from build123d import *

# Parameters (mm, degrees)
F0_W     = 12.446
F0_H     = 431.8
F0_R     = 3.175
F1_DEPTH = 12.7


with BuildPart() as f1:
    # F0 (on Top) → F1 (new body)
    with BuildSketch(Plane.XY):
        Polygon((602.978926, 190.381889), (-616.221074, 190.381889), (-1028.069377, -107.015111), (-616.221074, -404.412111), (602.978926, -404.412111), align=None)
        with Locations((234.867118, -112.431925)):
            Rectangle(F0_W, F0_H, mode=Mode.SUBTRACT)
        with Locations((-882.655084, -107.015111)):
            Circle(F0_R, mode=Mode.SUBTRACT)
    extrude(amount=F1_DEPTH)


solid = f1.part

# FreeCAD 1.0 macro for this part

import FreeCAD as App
import Part
import Sketcher
from FreeCAD import Vector
Q = App.Units.Quantity


def add_polygon(sketch, points):
    """Adds a closed chain of lines whose ends are joined by coincident constraints."""
    first, n = sketch.GeometryCount, len(points)
    for a, b in zip(points, points[1:] + points[:1]):
        sketch.addGeometry(Part.LineSegment(App.Vector(*a, 0), App.Vector(*b, 0)), False)
    for i in range(n):
        sketch.addConstraint(Sketcher.Constraint("Coincident", first + i, 2, first + (i + 1) % n, 1))

doc = App.newDocument("Part")
body = doc.addObject("PartDesign::Body", "Body")

sketch1 = doc.addObject("Sketcher::SketchObject", "Sketch")
body.addObject(sketch1)
sketch1.AttachmentSupport = (doc.XY_Plane, [""])
sketch1.MapMode = "FlatFace"
add_polygon(sketch1, [(602.978926, 190.381889), (-616.221074, 190.381889), (-1028.069377, -107.015111), (-616.221074, -404.412111), (602.978926, -404.412111)])
sketch1.addGeometry(Part.Circle(Vector(-882.655084, -107.015111, 0), Vector(0, 0, 1), 3.175), False)
add_polygon(sketch1, [(241.090118, -328.331925), (228.644118, -328.331925), (228.644118, 103.468075), (241.090118, 103.468075)])
sketch1.addConstraint(Sketcher.Constraint("Horizontal", 0))
sketch1.addConstraint(Sketcher.Constraint("Horizontal", 3))
sketch1.addConstraint(Sketcher.Constraint("Vertical", 4))
sketch1.addConstraint(Sketcher.Constraint("Horizontal", 6))
sketch1.addConstraint(Sketcher.Constraint("Vertical", 7))
sketch1.addConstraint(Sketcher.Constraint("Horizontal", 8))
sketch1.addConstraint(Sketcher.Constraint("Vertical", 9))
sketch1.addConstraint(Sketcher.Constraint("Horizontal", 5, 3, 1, 2))
sketch1.addConstraint(Sketcher.Constraint("Vertical", 0, 2, 2, 2))
sketch1.addConstraint(Sketcher.Constraint("Equal", 1, 2))
sketch1.addConstraint(Sketcher.Constraint("Diameter", 5, Q("0.25 in")))
sketch1.addConstraint(Sketcher.Constraint("DistanceX", 0, 2, 0, 1, Q("48 in")))
sketch1.addConstraint(Sketcher.Constraint("DistanceY", 7, 1, 7, 2, Q("17 in")))
sketch1.addConstraint(Sketcher.Constraint("Distance", 1, Q("20 in")))
sketch1.addConstraint(Sketcher.Constraint("DistanceX", 6, 2, 6, 1, Q("0.49 in")))
sketch1.addConstraint(Sketcher.Constraint("DistanceY", 4, 1, 4, 2, 594.794))
sketch1.addConstraint(Sketcher.Constraint("DistanceX", 5, 3, -1, 1, Q("34.7502002 in")))
sketch1.addConstraint(Sketcher.Constraint("DistanceX", 5, 3, 6, 2, 1111.299202))
sketch1.addConstraint(Sketcher.Constraint("DistanceY", 5, 3, -1, 1, 107.015111))
sketch1.addConstraint(Sketcher.Constraint("DistanceX", 5, 3, 0, 2, 266.43401))
sketch1.addConstraint(Sketcher.Constraint("DistanceY", 6, 2, -1, 1, 328.331925))
pad1 = doc.addObject("PartDesign::Pad", "Pad")
body.addObject(pad1)
pad1.Profile = sketch1
pad1.Length = Q("0.5 in")

doc.recompute()
